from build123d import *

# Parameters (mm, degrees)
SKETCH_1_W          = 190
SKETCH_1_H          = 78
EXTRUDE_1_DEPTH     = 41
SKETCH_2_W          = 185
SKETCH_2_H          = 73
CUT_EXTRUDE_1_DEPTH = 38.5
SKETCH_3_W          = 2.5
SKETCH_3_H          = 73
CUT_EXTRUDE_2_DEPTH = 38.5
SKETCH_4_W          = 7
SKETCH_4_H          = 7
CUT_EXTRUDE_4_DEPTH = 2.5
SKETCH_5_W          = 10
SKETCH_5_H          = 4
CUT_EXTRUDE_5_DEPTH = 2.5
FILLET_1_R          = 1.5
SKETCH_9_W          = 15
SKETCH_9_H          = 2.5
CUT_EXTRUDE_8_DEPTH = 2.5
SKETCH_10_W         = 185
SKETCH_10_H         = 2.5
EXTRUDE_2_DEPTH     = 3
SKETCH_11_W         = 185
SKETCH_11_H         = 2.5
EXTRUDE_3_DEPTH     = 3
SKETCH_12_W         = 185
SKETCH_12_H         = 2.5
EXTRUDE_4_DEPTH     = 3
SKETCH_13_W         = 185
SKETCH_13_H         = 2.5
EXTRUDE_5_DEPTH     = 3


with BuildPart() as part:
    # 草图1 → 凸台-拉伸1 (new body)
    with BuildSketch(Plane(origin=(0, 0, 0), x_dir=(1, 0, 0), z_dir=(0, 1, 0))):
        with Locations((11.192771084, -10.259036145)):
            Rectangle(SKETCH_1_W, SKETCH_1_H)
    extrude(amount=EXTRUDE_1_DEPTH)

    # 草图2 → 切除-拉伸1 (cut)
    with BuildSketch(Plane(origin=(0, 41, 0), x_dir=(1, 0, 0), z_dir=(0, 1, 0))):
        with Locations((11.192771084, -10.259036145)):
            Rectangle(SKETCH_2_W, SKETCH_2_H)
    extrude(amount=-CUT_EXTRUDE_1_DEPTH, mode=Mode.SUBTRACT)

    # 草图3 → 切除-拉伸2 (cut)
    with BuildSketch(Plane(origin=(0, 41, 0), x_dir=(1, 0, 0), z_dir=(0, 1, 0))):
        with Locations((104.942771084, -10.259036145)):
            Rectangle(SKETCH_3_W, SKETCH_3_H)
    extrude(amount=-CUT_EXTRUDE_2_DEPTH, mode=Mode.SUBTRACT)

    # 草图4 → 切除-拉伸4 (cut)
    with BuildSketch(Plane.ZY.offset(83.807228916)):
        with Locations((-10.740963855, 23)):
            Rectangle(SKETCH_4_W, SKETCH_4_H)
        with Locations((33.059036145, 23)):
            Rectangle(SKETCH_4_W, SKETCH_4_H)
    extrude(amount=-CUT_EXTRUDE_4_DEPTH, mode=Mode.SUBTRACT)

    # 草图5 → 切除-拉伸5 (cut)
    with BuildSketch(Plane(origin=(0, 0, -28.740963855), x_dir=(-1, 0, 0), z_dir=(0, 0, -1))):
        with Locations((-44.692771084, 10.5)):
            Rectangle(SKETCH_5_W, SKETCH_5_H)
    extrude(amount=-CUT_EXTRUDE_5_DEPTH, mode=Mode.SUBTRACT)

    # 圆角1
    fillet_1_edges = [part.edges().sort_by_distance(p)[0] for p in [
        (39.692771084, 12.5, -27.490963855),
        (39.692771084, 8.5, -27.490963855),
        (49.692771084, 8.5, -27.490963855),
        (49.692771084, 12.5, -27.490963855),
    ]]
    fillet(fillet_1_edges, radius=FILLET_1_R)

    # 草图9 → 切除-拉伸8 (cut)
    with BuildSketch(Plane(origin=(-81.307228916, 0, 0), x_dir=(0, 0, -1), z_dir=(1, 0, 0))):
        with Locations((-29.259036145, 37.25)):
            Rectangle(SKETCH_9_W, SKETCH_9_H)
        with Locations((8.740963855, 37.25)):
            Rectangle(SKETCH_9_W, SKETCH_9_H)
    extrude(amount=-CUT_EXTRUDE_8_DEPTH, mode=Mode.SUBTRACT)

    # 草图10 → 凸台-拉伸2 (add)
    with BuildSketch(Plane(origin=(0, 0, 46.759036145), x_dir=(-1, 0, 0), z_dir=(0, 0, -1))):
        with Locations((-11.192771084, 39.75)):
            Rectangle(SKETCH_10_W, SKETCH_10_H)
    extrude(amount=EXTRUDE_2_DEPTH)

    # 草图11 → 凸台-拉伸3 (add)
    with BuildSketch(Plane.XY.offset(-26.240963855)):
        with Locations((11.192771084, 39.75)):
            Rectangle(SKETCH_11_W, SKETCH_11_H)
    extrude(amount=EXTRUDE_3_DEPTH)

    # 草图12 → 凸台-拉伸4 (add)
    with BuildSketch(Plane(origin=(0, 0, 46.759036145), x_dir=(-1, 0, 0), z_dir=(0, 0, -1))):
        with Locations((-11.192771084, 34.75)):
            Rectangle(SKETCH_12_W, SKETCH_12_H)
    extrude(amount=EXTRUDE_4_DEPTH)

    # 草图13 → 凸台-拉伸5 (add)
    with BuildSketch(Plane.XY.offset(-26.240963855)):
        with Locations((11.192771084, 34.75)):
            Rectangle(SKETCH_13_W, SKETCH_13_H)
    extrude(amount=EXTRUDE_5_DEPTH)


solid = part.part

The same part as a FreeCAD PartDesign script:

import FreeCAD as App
import Part
import Sketcher
from FreeCAD import Vector


def edges_at(feature, points):
    """Names of the edges that pass closest to the given points."""
    edges = feature.Shape.Edges
    near = lambda p: min(range(len(edges)), key=lambda i: edges[i].distToShape(Part.Vertex(*p))[0])
    return sorted({f"Edge{near(p) + 1}" for p in points})

doc = App.newDocument("Part")
body = doc.addObject("PartDesign::Body", "Body")

# Sketch on XZ plane
sketch1 = body.newObject("Sketcher::SketchObject", "Sketch")
sketch1.AttachmentSupport = (doc.getObject("XZ_Plane"), [""])
sketch1.MapMode = "FlatFace"
sketch1.addGeometry([
    Part.LineSegment(Vector(-84, -29, 0), Vector(-84, 49, 0)),
    Part.LineSegment(Vector(-84, 49, 0), Vector(106, 49, 0)),
    Part.LineSegment(Vector(106, 49, 0), Vector(106, -29, 0)),
    Part.LineSegment(Vector(106, -29, 0), Vector(-84, -29, 0)),
], False)
sketch1.addConstraint([
    Sketcher.Constraint("Coincident", 0, 2, 1, 1),
    Sketcher.Constraint("Coincident", 1, 2, 2, 1),
    Sketcher.Constraint("Coincident", 2, 2, 3, 1),
    Sketcher.Constraint("Coincident", 3, 2, 0, 1),
    Sketcher.Constraint("Vertical", 0),
    Sketcher.Constraint("Horizontal", 1),
    Sketcher.Constraint("Vertical", 2),
    Sketcher.Constraint("Horizontal", 3),
    Sketcher.Constraint("DistanceX", 1, 1, 1, 2, 190.0),
    Sketcher.Constraint("DistanceY", 0, 1, 0, 2, 78.0),
    Sketcher.Constraint("DistanceX", 0, 2, -1, 1, 83.807229),
    Sketcher.Constraint("DistanceY", -1, 1, 0, 2, 49.259036),
])
pad1 = body.newObject("PartDesign::Pad", "Pad")
pad1.Profile = sketch1
pad1.Length = 41
pad1.Reversed = True

# Sketch on XZ plane
sketch2 = body.newObject("Sketcher::SketchObject", "Sketch001")
sketch2.AttachmentSupport = (doc.getObject("XZ_Plane"), [""])
sketch2.MapMode = "FlatFace"
sketch2.AttachmentOffset = App.Placement(Vector(0, 0, -41), App.Rotation())
sketch2.addGeometry([
    Part.LineSegment(Vector(-81, -26, 0), Vector(-81, 47, 0)),
    Part.LineSegment(Vector(-81, 47, 0), Vector(104, 47, 0)),
    Part.LineSegment(Vector(104, 47, 0), Vector(104, -26, 0)),
    Part.LineSegment(Vector(104, -26, 0), Vector(-81, -26, 0)),
], False)
sketch2.addConstraint([
    Sketcher.Constraint("Coincident", 0, 2, 1, 1),
    Sketcher.Constraint("Coincident", 1, 2, 2, 1),
    Sketcher.Constraint("Coincident", 2, 2, 3, 1),
    Sketcher.Constraint("Coincident", 3, 2, 0, 1),
    Sketcher.Constraint("Vertical", 0),
    Sketcher.Constraint("Horizontal", 1),
    Sketcher.Constraint("Vertical", 2),
    Sketcher.Constraint("Horizontal", 3),
    Sketcher.Constraint("DistanceX", 1, 1, 1, 2, 185.0),
    Sketcher.Constraint("DistanceY", 0, 1, 0, 2, 73.0),
    Sketcher.Constraint("DistanceX", 0, 2, -1, 1, 81.307229),
    Sketcher.Constraint("DistanceY", -1, 1, 0, 2, 46.759036),
])
pocket1 = body.newObject("PartDesign::Pocket", "Pocket")
pocket1.Profile = sketch2
pocket1.Length = 38.5
pocket1.Reversed = True

# Sketch on XZ plane
sketch3 = body.newObject("Sketcher::SketchObject", "Sketch002")
sketch3.AttachmentSupport = (doc.getObject("XZ_Plane"), [""])
sketch3.MapMode = "FlatFace"
sketch3.AttachmentOffset = App.Placement(Vector(0, 0, -41), App.Rotation())
sketch3.addGeometry([
    Part.LineSegment(Vector(103.7, -26.2, 0), Vector(103.7, 46.8, 0)),
    Part.LineSegment(Vector(103.7, 46.8, 0), Vector(106.2, 46.8, 0)),
    Part.LineSegment(Vector(106.2, 46.8, 0), Vector(106.2, -26.2, 0)),
    Part.LineSegment(Vector(106.2, -26.2, 0), Vector(103.7, -26.2, 0)),
], False)
sketch3.addConstraint([
    Sketcher.Constraint("Coincident", 0, 2, 1, 1),
    Sketcher.Constraint("Coincident", 1, 2, 2, 1),
    Sketcher.Constraint("Coincident", 2, 2, 3, 1),
    Sketcher.Constraint("Coincident", 3, 2, 0, 1),
    Sketcher.Constraint("Vertical", 0),
    Sketcher.Constraint("Horizontal", 1),
    Sketcher.Constraint("Vertical", 2),
    Sketcher.Constraint("Horizontal", 3),
    Sketcher.Constraint("DistanceY", 0, 1, 0, 2, 73.0),
    Sketcher.Constraint("DistanceX", 1, 1, 1, 2, 2.5),
    Sketcher.Constraint("DistanceX", -1, 1, 0, 2, 103.692771),
    Sketcher.Constraint("DistanceY", -1, 1, 0, 2, 46.759036),
])
pocket2 = body.newObject("PartDesign::Pocket", "Pocket001")
pocket2.Profile = sketch3
pocket2.Length = 38.5
pocket2.Reversed = True

# Sketch on YZ plane
sketch4 = body.newObject("Sketcher::SketchObject", "Sketch003")
sketch4.AttachmentSupport = (doc.getObject("YZ_Plane"), [""])
sketch4.MapMode = "FlatFace"
sketch4.AttachmentOffset = App.Placement(Vector(0, 0, -83.807229), App.Rotation())
sketch4.addGeometry([
    Part.LineSegment(Vector(26, -14, 0), Vector(20, -14, 0)),  # 0
    Part.LineSegment(Vector(20, -14, 0), Vector(20, -7, 0)),  # 1
    Part.LineSegment(Vector(20, -7, 0), Vector(26, -7, 0)),  # 2
    Part.LineSegment(Vector(26, -7, 0), Vector(26, -14, 0)),  # 3
    Part.LineSegment(Vector(26, 30, 0), Vector(20, 30, 0)),  # 4
    Part.LineSegment(Vector(20, 30, 0), Vector(20, 37, 0)),  # 5
    Part.LineSegment(Vector(20, 37, 0), Vector(26, 37, 0)),  # 6
    Part.LineSegment(Vector(26, 37, 0), Vector(26, 30, 0)),  # 7
], False)
sketch4.addConstraint([
    Sketcher.Constraint("Coincident", 0, 2, 1, 1),
    Sketcher.Constraint("Coincident", 1, 2, 2, 1),
    Sketcher.Constraint("Coincident", 2, 2, 3, 1),
    Sketcher.Constraint("Coincident", 3, 2, 0, 1),
    Sketcher.Constraint("Coincident", 4, 2, 5, 1),
    Sketcher.Constraint("Coincident", 5, 2, 6, 1),
    Sketcher.Constraint("Coincident", 6, 2, 7, 1),
    Sketcher.Constraint("Coincident", 7, 2, 4, 1),
    Sketcher.Constraint("Horizontal", 0),
    Sketcher.Constraint("Vertical", 1),
    Sketcher.Constraint("Horizontal", 2),
    Sketcher.Constraint("Vertical", 3),
    Sketcher.Constraint("Horizontal", 4),
    Sketcher.Constraint("Vertical", 5),
    Sketcher.Constraint("Horizontal", 6),
    Sketcher.Constraint("Vertical", 7),
    Sketcher.Constraint("Vertical", 1, 2, 4, 2),
    Sketcher.Constraint("Vertical", 3, 2, 6, 2),
    Sketcher.Constraint("Equal", 6, 1),
    Sketcher.Constraint("Equal", 3, 5),
    Sketcher.Constraint("DistanceX", 0, 2, 0, 1, 7.0),
    Sketcher.Constraint("DistanceX", -1, 1, 0, 2, 19.5),
    Sketcher.Constraint("DistanceY", 1, 2, 4, 2, 36.8),
    Sketcher.Constraint("DistanceY", 0, 2, -1, 1, 14.240964),
])
pocket3 = body.newObject("PartDesign::Pocket", "Pocket002")
pocket3.Profile = sketch4
pocket3.Length = 2.5
pocket3.Reversed = True

# Sketch on XY plane
sketch5 = body.newObject("Sketcher::SketchObject", "Sketch004")
sketch5.AttachmentSupport = (doc.getObject("XY_Plane"), [""])
sketch5.MapMode = "FlatFace"
sketch5.AttachmentOffset = App.Placement(Vector(0, 0, -28.740964), App.Rotation())
sketch5.addGeometry([
    Part.LineSegment(Vector(49.7, 12.5, 0), Vector(49.7, 8.5, 0)),
    Part.LineSegment(Vector(49.7, 8.5, 0), Vector(39.7, 8.5, 0)),
    Part.LineSegment(Vector(39.7, 8.5, 0), Vector(39.7, 12.5, 0)),
    Part.LineSegment(Vector(39.7, 12.5, 0), Vector(49.7, 12.5, 0)),
], False)
sketch5.addConstraint([
    Sketcher.Constraint("Coincident", 0, 2, 1, 1),
    Sketcher.Constraint("Coincident", 1, 2, 2, 1),
    Sketcher.Constraint("Coincident", 2, 2, 3, 1),
    Sketcher.Constraint("Coincident", 3, 2, 0, 1),
    Sketcher.Constraint("Vertical", 0),
    Sketcher.Constraint("Horizontal", 1),
    Sketcher.Constraint("Vertical", 2),
    Sketcher.Constraint("Horizontal", 3),
    Sketcher.Constraint("DistanceX", 1, 2, 1, 1, 10.0),
    Sketcher.Constraint("DistanceY", 0, 2, 0, 1, 4.0),
    Sketcher.Constraint("DistanceY", -1, 1, 0, 2, 8.5),
    Sketcher.Constraint("DistanceX", -1, 1, 0, 2, 49.692771),
])
pocket4 = body.newObject("PartDesign::Pocket", "Pocket003")
pocket4.Profile = sketch5
pocket4.Length = 2.5
pocket4.Reversed = True
doc.recompute()

fillet = body.newObject("PartDesign::Fillet", "Fillet")
fillet.Base = (pocket4, edges_at(pocket4, [
    (39.693, 12.5, -27.491),
    (39.693, 8.5, -27.491),
    (49.693, 8.5, -27.491),
    (49.693, 12.5, -27.491),
]))
fillet.Radius = 1.5

# Sketch on YZ plane
sketch6 = body.newObject("Sketcher::SketchObject", "Sketch005")
sketch6.AttachmentSupport = (doc.getObject("YZ_Plane"), [""])
sketch6.MapMode = "FlatFace"
sketch6.AttachmentOffset = App.Placement(Vector(0, 0, -81.307229), App.Rotation())
sketch6.addGeometry([
    Part.LineSegment(Vector(38.5, 36.8, 0), Vector(36, 36.8, 0)),  # 0
    Part.LineSegment(Vector(36, 36.8, 0), Vector(36, 21.8, 0)),  # 1
    Part.LineSegment(Vector(36, 21.8, 0), Vector(38.5, 21.8, 0)),  # 2
    Part.LineSegment(Vector(38.5, 21.8, 0), Vector(38.5, 36.8, 0)),  # 3
    Part.LineSegment(Vector(38.5, -1.2, 0), Vector(36, -1.2, 0)),  # 4
    Part.LineSegment(Vector(36, -1.2, 0), Vector(36, -16.2, 0)),  # 5
    Part.LineSegment(Vector(36, -16.2, 0), Vector(38.5, -16.2, 0)),  # 6
    Part.LineSegment(Vector(38.5, -16.2, 0), Vector(38.5, -1.2, 0)),  # 7
], False)
sketch6.addConstraint([
    Sketcher.Constraint("Coincident", 0, 2, 1, 1),
    Sketcher.Constraint("Coincident", 1, 2, 2, 1),
    Sketcher.Constraint("Coincident", 2, 2, 3, 1),
    Sketcher.Constraint("Coincident", 3, 2, 0, 1),
    Sketcher.Constraint("Coincident", 4, 2, 5, 1),
    Sketcher.Constraint("Coincident", 5, 2, 6, 1),
    Sketcher.Constraint("Coincident", 6, 2, 7, 1),
    Sketcher.Constraint("Coincident", 7, 2, 4, 1),
    Sketcher.Constraint("Horizontal", 0),
    Sketcher.Constraint("Vertical", 1),
    Sketcher.Constraint("Horizontal", 2),
    Sketcher.Constraint("Vertical", 3),
    Sketcher.Constraint("Horizontal", 4),
    Sketcher.Constraint("Vertical", 5),
    Sketcher.Constraint("Horizontal", 6),
    Sketcher.Constraint("Vertical", 7),
    Sketcher.Constraint("Vertical", 1, 2, 4, 2),
    Sketcher.Constraint("Vertical", 3, 2, 6, 2),
    Sketcher.Constraint("Equal", 3, 5),
    Sketcher.Constraint("DistanceY", 1, 2, 1, 1, 15.0),
    Sketcher.Constraint("DistanceX", 0, 2, 0, 1, 2.5),
    Sketcher.Constraint("DistanceX", -1, 1, 0, 2, 36.0),
    Sketcher.Constraint("DistanceY", 4, 2, 1, 2, 23.0),
    Sketcher.Constraint("DistanceY", -1, 1, 0, 2, 36.759036),
])
pocket5 = body.newObject("PartDesign::Pocket", "Pocket004")
pocket5.Profile = sketch6
pocket5.Length = 2.5

# Sketch on XY plane
sketch7 = body.newObject("Sketcher::SketchObject", "Sketch006")
sketch7.AttachmentSupport = (doc.getObject("XY_Plane"), [""])
sketch7.MapMode = "FlatFace"
sketch7.AttachmentOffset = App.Placement(Vector(0, 0, 46.759036), App.Rotation())
sketch7.addGeometry([
    Part.LineSegment(Vector(103.7, 41, 0), Vector(103.7, 38.5, 0)),
    Part.LineSegment(Vector(103.7, 38.5, 0), Vector(-81.3, 38.5, 0)),
    Part.LineSegment(Vector(-81.3, 38.5, 0), Vector(-81.3, 41, 0)),
    Part.LineSegment(Vector(-81.3, 41, 0), Vector(103.7, 41, 0)),
], False)
sketch7.addConstraint([
    Sketcher.Constraint("Coincident", 0, 2, 1, 1),
    Sketcher.Constraint("Coincident", 1, 2, 2, 1),
    Sketcher.Constraint("Coincident", 2, 2, 3, 1),
    Sketcher.Constraint("Coincident", 3, 2, 0, 1),
    Sketcher.Constraint("Vertical", 0),
    Sketcher.Constraint("Horizontal", 1),
    Sketcher.Constraint("Vertical", 2),
    Sketcher.Constraint("Horizontal", 3),
    Sketcher.Constraint("DistanceX", 1, 2, 1, 1, 185.0),
    Sketcher.Constraint("DistanceY", 0, 2, 0, 1, 2.5),
    Sketcher.Constraint("DistanceY", -1, 1, 2, 2, 41.0),
    Sketcher.Constraint("DistanceX", -1, 1, 0, 2, 103.692771),
])
pad2 = body.newObject("PartDesign::Pad", "Pad001")
pad2.Profile = sketch7
pad2.Length = 3
pad2.Reversed = True

# Sketch on XY plane
sketch8 = body.newObject("Sketcher::SketchObject", "Sketch007")
sketch8.AttachmentSupport = (doc.getObject("XY_Plane"), [""])
sketch8.MapMode = "FlatFace"
sketch8.AttachmentOffset = App.Placement(Vector(0, 0, -26.240964), App.Rotation())
sketch8.addGeometry([
    Part.LineSegment(Vector(-81.3, 41, 0), Vector(-81.3, 38.5, 0)),
    Part.LineSegment(Vector(-81.3, 38.5, 0), Vector(103.7, 38.5, 0)),
    Part.LineSegment(Vector(103.7, 38.5, 0), Vector(103.7, 41, 0)),
    Part.LineSegment(Vector(103.7, 41, 0), Vector(-81.3, 41, 0)),
], False)
sketch8.addConstraint([
    Sketcher.Constraint("Coincident", 0, 2, 1, 1),
    Sketcher.Constraint("Coincident", 1, 2, 2, 1),
    Sketcher.Constraint("Coincident", 2, 2, 3, 1),
    Sketcher.Constraint("Coincident", 3, 2, 0, 1),
    Sketcher.Constraint("Vertical", 0),
    Sketcher.Constraint("Horizontal", 1),
    Sketcher.Constraint("Vertical", 2),
    Sketcher.Constraint("Horizontal", 3),
    Sketcher.Constraint("DistanceX", 1, 1, 1, 2, 185.0),
    Sketcher.Constraint("DistanceY", 0, 2, 0, 1, 2.5),
    Sketcher.Constraint("DistanceY", -1, 1, 2, 2, 41.0),
    Sketcher.Constraint("DistanceX", 0, 2, -1, 1, 81.307229),
])
pad3 = body.newObject("PartDesign::Pad", "Pad002")
pad3.Profile = sketch8
pad3.Length = 3

# Sketch on XY plane
sketch9 = body.newObject("Sketcher::SketchObject", "Sketch008")
sketch9.AttachmentSupport = (doc.getObject("XY_Plane"), [""])
sketch9.MapMode = "FlatFace"
sketch9.AttachmentOffset = App.Placement(Vector(0, 0, 46.759036), App.Rotation())
sketch9.addGeometry([
    Part.LineSegment(Vector(103.7, 36, 0), Vector(103.7, 33.5, 0)),
    Part.LineSegment(Vector(103.7, 33.5, 0), Vector(-81.3, 33.5, 0)),
    Part.LineSegment(Vector(-81.3, 33.5, 0), Vector(-81.3, 36, 0)),
    Part.LineSegment(Vector(-81.3, 36, 0), Vector(103.7, 36, 0)),
], False)
sketch9.addConstraint([
    Sketcher.Constraint("Coincident", 0, 2, 1, 1),
    Sketcher.Constraint("Coincident", 1, 2, 2, 1),
    Sketcher.Constraint("Coincident", 2, 2, 3, 1),
    Sketcher.Constraint("Coincident", 3, 2, 0, 1),
    Sketcher.Constraint("Vertical", 0),
    Sketcher.Constraint("Horizontal", 1),
    Sketcher.Constraint("Vertical", 2),
    Sketcher.Constraint("Horizontal", 3),
    Sketcher.Constraint("DistanceX", 1, 2, 1, 1, 185.0),
    Sketcher.Constraint("DistanceY", 0, 2, 0, 1, 2.5),
    Sketcher.Constraint("DistanceY", -1, 1, 2, 2, 36.0),
    Sketcher.Constraint("DistanceX", -1, 1, 0, 2, 103.692771),
])
pad4 = body.newObject("PartDesign::Pad", "Pad003")
pad4.Profile = sketch9
pad4.Length = 3
pad4.Reversed = True

# Sketch on XY plane
sketch10 = body.newObject("Sketcher::SketchObject", "Sketch009")
sketch10.AttachmentSupport = (doc.getObject("XY_Plane"), [""])
sketch10.MapMode = "FlatFace"
sketch10.AttachmentOffset = App.Placement(Vector(0, 0, -26.240964), App.Rotation())
sketch10.addGeometry([
    Part.LineSegment(Vector(-81.3, 36, 0), Vector(-81.3, 33.5, 0)),
    Part.LineSegment(Vector(-81.3, 33.5, 0), Vector(103.7, 33.5, 0)),
    Part.LineSegment(Vector(103.7, 33.5, 0), Vector(103.7, 36, 0)),
    Part.LineSegment(Vector(103.7, 36, 0), Vector(-81.3, 36, 0)),
], False)
sketch10.addConstraint([
    Sketcher.Constraint("Coincident", 0, 2, 1, 1),
    Sketcher.Constraint("Coincident", 1, 2, 2, 1),
    Sketcher.Constraint("Coincident", 2, 2, 3, 1),
    Sketcher.Constraint("Coincident", 3, 2, 0, 1),
    Sketcher.Constraint("Vertical", 0),
    Sketcher.Constraint("Horizontal", 1),
    Sketcher.Constraint("Vertical", 2),
    Sketcher.Constraint("Horizontal", 3),
    Sketcher.Constraint("DistanceX", 1, 1, 1, 2, 185.0),
    Sketcher.Constraint("DistanceY", 0, 2, 0, 1, 2.5),
    Sketcher.Constraint("DistanceY", -1, 1, 2, 2, 36.0),
    Sketcher.Constraint("DistanceX", 0, 2, -1, 1, 81.307229),
])
pad5 = body.newObject("PartDesign::Pad", "Pad004")
pad5.Profile = sketch10
pad5.Length = 3

doc.recompute()
